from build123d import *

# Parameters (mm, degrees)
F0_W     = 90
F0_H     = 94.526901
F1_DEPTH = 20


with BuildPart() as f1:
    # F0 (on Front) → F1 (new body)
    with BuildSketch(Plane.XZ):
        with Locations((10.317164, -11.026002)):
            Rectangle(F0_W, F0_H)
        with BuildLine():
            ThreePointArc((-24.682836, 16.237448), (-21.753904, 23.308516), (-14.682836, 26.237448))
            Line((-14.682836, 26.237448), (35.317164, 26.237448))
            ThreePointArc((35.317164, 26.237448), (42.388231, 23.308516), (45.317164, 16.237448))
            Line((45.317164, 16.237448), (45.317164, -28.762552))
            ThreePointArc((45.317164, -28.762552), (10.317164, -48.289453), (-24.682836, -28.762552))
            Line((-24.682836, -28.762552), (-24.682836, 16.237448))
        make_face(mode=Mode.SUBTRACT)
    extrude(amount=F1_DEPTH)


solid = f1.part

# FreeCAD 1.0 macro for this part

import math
import FreeCAD as App
import Part
import Sketcher

V = App.Vector

doc = App.newDocument("Part")
body = doc.addObject("PartDesign::Body", "Body")

# Sketch on XZ plane
sketch1 = body.newObject("Sketcher::SketchObject", "Sketch")
sketch1.AttachmentSupport = (doc.getObject("XZ_Plane"), [""])
sketch1.MapMode = "FlatFace"
sketch1.addGeometry([
    Part.LineSegment(V(-34.682836, 36.237448, 0), V(-34.682836, -58.289453, 0)),  # 0
    Part.LineSegment(V(-34.682836, -58.289453, 0), V(55.317164, -58.289453, 0)),  # 1
    Part.LineSegment(V(55.317164, -58.289453, 0), V(55.317164, 36.237448, 0)),  # 2
    Part.LineSegment(V(55.317164, 36.237448, 0), V(-34.682836, 36.237448, 0)),  # 3
    Part.LineSegment(V(-24.682836, -28.762552, 0), V(-24.682836, 16.237448, 0)),  # 4
    Part.ArcOfCircle(Part.Circle(V(-14.682837, 16.237449, 0), V(0, 0, 1), 9.999999), math.radians(89.999996), math.radians(180.000004)),  # 5
    Part.LineSegment(V(-14.682836, 26.237448, 0), V(35.317164, 26.237448, 0)),  # 6
    Part.ArcOfCircle(Part.Circle(V(35.317163, 16.237447, 0), V(0, 0, 1), 10.000001), math.radians(0.000006), math.radians(89.999994)),  # 7
    Part.LineSegment(V(45.317164, 16.237448, 0), V(45.317164, -28.762552, 0)),  # 8
    Part.ArcOfCircle(Part.Circle(V(10.317164, -7.159018, 0), V(0, 0, 1), 41.130435), math.radians(-148.315297), math.radians(-31.684703)),  # 9
], False)
sketch1.addConstraint([
    Sketcher.Constraint("Coincident", 0, 2, 1, 1),
    Sketcher.Constraint("Coincident", 1, 2, 2, 1),
    Sketcher.Constraint("Coincident", 2, 2, 3, 1),
    Sketcher.Constraint("Coincident", 3, 2, 0, 1),
    Sketcher.Constraint("Tangent", 4, 2, 5, 2),
    Sketcher.Constraint("Tangent", 5, 1, 6, 1),
    Sketcher.Constraint("Tangent", 6, 2, 7, 2),
    Sketcher.Constraint("Tangent", 7, 1, 8, 1),
    Sketcher.Constraint("Coincident", 8, 2, 9, 2),
    Sketcher.Constraint("Coincident", 9, 1, 4, 1),
    Sketcher.Constraint("Vertical", 0),
    Sketcher.Constraint("Horizontal", 1),
    Sketcher.Constraint("Vertical", 2),
    Sketcher.Constraint("Horizontal", 3),
    Sketcher.Constraint("Vertical", 4),
    Sketcher.Constraint("Horizontal", 6),
    Sketcher.Constraint("Vertical", 8),
    Sketcher.Constraint("Equal", 5, 7),
    Sketcher.Constraint("Horizontal", 8, 2, 9, 1),
    Sketcher.Constraint("Radius", 5, 9.999999),
    Sketcher.Constraint("DistanceX", 1, 1, 1, 2, 90.0),
    Sketcher.Constraint("DistanceX", 6, 1, 6, 2, 50.0),
    Sketcher.Constraint("DistanceY", 4, 1, 4, 2, 45.0),
    Sketcher.Constraint("DistanceX", 0, 2, 9, 3, 45.0),
    Sketcher.Constraint("DistanceY", 7, 3, 2, 2, 20.000002),
    Sketcher.Constraint("DistanceY", 0, 2, 0, 1, 94.526901),
    Sketcher.Constraint("Radius", 9, 41.130435),
    Sketcher.Constraint("DistanceY", -1, 1, 5, 3, 16.237449),
    Sketcher.Constraint("DistanceX", 5, 3, -1, 1, 14.682837),
])
pad1 = body.newObject("PartDesign::Pad", "Pad")
pad1.Profile = sketch1
pad1.Length = 20

doc.recompute()
